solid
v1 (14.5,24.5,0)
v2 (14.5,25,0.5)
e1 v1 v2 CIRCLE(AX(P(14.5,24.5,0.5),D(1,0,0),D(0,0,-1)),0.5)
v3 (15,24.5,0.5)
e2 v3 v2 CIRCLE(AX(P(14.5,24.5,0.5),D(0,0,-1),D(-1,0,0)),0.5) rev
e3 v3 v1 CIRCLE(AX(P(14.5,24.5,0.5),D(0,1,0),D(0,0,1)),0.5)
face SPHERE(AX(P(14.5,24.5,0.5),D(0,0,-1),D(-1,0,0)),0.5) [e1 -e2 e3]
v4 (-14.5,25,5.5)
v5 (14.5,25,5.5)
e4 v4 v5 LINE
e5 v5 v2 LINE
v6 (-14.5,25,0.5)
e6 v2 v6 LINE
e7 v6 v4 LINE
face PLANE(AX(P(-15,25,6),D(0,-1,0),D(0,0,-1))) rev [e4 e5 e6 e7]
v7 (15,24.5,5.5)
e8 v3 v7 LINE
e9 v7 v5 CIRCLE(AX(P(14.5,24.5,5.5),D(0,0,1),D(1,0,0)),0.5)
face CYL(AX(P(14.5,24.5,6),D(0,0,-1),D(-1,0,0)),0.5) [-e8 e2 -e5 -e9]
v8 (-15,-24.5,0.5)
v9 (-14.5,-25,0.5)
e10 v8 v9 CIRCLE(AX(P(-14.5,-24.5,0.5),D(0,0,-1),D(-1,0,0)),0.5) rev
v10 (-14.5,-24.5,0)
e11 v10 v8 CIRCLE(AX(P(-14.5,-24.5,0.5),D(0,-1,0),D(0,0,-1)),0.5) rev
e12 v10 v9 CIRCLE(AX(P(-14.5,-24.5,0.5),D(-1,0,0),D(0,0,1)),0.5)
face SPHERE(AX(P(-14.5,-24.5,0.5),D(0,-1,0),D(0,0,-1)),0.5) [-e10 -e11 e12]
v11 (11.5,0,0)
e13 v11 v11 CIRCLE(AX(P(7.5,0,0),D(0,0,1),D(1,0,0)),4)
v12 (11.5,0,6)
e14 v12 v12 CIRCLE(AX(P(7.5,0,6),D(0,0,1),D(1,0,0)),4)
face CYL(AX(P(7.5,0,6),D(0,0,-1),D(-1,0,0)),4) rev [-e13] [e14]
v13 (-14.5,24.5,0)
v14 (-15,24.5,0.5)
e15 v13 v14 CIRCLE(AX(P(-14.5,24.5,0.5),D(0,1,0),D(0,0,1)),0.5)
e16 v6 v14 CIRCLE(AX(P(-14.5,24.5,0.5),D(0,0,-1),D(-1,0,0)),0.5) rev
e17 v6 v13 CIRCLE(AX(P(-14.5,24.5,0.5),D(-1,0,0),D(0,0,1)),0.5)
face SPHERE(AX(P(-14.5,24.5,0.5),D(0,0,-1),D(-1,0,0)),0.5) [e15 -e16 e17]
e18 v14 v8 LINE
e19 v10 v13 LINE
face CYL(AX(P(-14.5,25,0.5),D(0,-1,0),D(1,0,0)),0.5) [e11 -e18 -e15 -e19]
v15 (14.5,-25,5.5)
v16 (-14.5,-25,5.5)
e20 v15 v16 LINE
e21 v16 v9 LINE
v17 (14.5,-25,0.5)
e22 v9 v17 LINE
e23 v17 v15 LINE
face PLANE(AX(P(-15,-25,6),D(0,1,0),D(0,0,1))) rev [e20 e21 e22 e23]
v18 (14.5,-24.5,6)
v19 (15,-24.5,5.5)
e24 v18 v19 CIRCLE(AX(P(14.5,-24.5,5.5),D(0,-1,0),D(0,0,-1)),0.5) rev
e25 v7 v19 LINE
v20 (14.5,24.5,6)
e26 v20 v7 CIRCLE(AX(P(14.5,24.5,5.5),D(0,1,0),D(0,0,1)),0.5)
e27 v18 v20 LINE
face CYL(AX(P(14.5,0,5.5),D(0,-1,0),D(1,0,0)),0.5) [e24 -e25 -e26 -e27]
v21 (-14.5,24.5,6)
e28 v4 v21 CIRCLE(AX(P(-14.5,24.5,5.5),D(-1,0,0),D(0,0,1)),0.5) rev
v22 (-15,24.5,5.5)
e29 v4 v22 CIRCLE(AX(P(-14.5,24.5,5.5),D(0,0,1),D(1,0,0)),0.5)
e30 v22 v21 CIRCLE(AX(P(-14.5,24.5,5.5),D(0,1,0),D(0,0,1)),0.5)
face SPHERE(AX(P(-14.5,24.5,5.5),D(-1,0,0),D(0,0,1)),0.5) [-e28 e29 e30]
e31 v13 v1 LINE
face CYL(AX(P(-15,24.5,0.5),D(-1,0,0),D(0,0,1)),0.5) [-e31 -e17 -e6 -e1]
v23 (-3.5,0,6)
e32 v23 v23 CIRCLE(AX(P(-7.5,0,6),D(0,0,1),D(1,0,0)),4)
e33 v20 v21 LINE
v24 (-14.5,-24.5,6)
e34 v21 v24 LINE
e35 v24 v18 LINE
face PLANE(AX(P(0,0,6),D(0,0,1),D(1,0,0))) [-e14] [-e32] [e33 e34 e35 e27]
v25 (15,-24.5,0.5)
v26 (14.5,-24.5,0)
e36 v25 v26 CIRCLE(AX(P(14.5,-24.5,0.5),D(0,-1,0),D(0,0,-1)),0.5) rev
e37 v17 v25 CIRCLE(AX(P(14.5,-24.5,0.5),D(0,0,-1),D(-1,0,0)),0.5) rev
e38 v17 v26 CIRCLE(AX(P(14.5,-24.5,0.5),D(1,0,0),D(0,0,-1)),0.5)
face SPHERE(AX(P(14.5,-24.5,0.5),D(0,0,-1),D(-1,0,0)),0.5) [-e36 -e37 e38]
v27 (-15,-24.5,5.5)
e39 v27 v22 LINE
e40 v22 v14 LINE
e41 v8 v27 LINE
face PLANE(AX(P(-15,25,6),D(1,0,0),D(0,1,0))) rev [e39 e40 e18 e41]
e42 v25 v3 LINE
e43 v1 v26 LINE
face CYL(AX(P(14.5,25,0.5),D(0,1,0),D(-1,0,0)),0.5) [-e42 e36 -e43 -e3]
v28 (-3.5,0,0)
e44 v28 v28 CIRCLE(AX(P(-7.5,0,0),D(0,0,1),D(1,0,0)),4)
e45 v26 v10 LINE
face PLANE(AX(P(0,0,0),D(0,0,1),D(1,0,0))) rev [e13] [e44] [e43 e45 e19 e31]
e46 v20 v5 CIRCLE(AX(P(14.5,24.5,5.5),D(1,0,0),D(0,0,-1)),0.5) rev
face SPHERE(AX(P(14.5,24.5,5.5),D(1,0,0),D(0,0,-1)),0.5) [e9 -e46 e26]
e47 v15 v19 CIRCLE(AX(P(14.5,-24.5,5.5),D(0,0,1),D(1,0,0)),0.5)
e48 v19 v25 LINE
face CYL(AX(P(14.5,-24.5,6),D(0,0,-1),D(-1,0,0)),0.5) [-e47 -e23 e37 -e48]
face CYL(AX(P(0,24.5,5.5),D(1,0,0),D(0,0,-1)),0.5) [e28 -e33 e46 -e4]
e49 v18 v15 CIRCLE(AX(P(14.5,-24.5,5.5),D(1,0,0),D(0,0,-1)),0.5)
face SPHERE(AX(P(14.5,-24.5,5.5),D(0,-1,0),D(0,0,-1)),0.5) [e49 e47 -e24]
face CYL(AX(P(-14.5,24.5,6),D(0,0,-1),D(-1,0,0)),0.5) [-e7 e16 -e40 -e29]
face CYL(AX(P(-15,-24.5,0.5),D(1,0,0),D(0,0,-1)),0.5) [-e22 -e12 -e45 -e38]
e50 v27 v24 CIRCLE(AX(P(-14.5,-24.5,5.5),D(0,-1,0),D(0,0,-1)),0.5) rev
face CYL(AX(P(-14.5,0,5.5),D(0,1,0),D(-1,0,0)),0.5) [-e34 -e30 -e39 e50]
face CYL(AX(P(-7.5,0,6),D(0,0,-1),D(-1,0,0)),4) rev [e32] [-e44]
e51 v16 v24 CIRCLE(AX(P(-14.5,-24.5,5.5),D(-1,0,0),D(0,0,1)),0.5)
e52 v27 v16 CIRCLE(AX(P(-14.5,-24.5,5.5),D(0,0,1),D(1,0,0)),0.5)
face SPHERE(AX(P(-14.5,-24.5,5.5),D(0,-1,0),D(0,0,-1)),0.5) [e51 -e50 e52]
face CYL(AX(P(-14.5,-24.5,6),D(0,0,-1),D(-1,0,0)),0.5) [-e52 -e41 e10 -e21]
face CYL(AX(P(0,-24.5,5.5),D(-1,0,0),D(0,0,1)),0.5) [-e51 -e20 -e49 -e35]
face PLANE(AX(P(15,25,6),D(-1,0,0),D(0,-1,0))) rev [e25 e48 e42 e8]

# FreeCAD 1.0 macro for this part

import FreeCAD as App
import Part
import Sketcher
Q = App.Units.Quantity


def edges_at(feature, points):
    """Names of the edges that pass closest to the given points."""
    edges = feature.Shape.Edges
    near = lambda p: min(range(len(edges)), key=lambda i: edges[i].distToShape(Part.Vertex(*p))[0])
    return sorted({f"Edge{near(p) + 1}" for p in points})

doc = App.newDocument("Part")
body = doc.addObject("PartDesign::Body", "Body")

sketch1 = doc.addObject("Sketcher::SketchObject", "Sketch")
body.addObject(sketch1)
sketch1.AttachmentSupport = (doc.XY_Plane, [""])
sketch1.MapMode = "FlatFace"
sketch1.addGeometry(Part.LineSegment(App.Vector(-15, 25, 0), App.Vector(-15, -25, 0)), False)
sketch1.addGeometry(Part.LineSegment(App.Vector(-15, -25, 0), App.Vector(15, -25, 0)), False)
sketch1.addGeometry(Part.LineSegment(App.Vector(15, -25, 0), App.Vector(15, 25, 0)), False)
sketch1.addGeometry(Part.LineSegment(App.Vector(15, 25, 0), App.Vector(-15, 25, 0)), False)
sketch1.addGeometry(Part.Circle(App.Vector(-7.5, 0, 0), App.Vector(0, 0, 1), 4), False)
sketch1.addGeometry(Part.Circle(App.Vector(7.5, 0, 0), App.Vector(0, 0, 1), 4), False)
sketch1.addConstraint(Sketcher.Constraint("Coincident", 0, 2, 1, 1))
sketch1.addConstraint(Sketcher.Constraint("Coincident", 1, 2, 2, 1))
sketch1.addConstraint(Sketcher.Constraint("Coincident", 2, 2, 3, 1))
sketch1.addConstraint(Sketcher.Constraint("Coincident", 3, 2, 0, 1))
sketch1.addConstraint(Sketcher.Constraint("Vertical", 0))
sketch1.addConstraint(Sketcher.Constraint("Horizontal", 1))
sketch1.addConstraint(Sketcher.Constraint("Vertical", 2))
sketch1.addConstraint(Sketcher.Constraint("Horizontal", 3))
sketch1.addConstraint(Sketcher.Constraint("Equal", 4, 5))
sketch1.addConstraint(Sketcher.Constraint("Symmetric", 4, 3, 5, 3, -1, 1))
sketch1.addConstraint(Sketcher.Constraint("Symmetric", 0, 2, 2, 2, -1, 1))
sketch1.addConstraint(Sketcher.Constraint("PointOnObject", 4, 3, -1))
sketch1.addConstraint(Sketcher.Constraint("Diameter", 4, Q("8 mm")))
sketch1.addConstraint(Sketcher.Constraint("DistanceX", 1, 1, 1, 2, Q("30 mm")))
sketch1.addConstraint(Sketcher.Constraint("DistanceY", 0, 2, 0, 1, Q("50 mm")))
sketch1.addConstraint(Sketcher.Constraint("DistanceX", 4, 3, 5, 3, Q("15 mm")))
pad1 = doc.addObject("PartDesign::Pad", "Pad")
body.addObject(pad1)
pad1.Profile = sketch1
pad1.Length = 6
doc.recompute()

fillet = doc.addObject("PartDesign::Fillet", "Fillet")
body.addObject(fillet)
fillet.Base = (pad1, edges_at(pad1, [
    (-15, 0, 6),
    (0, -25, 6),
    (15, 0, 6),
    (0, -25, 0),
    (-15, 0, 0),
    (0, 25, 0),
    (15, 0, 0),
    (15, -25, 3),
    (-15, -25, 3),
    (-15, 25, 3),
    (15, 25, 3),
    (0, 25, 6),
]))
fillet.Radius = 0.5

doc.recompute()
